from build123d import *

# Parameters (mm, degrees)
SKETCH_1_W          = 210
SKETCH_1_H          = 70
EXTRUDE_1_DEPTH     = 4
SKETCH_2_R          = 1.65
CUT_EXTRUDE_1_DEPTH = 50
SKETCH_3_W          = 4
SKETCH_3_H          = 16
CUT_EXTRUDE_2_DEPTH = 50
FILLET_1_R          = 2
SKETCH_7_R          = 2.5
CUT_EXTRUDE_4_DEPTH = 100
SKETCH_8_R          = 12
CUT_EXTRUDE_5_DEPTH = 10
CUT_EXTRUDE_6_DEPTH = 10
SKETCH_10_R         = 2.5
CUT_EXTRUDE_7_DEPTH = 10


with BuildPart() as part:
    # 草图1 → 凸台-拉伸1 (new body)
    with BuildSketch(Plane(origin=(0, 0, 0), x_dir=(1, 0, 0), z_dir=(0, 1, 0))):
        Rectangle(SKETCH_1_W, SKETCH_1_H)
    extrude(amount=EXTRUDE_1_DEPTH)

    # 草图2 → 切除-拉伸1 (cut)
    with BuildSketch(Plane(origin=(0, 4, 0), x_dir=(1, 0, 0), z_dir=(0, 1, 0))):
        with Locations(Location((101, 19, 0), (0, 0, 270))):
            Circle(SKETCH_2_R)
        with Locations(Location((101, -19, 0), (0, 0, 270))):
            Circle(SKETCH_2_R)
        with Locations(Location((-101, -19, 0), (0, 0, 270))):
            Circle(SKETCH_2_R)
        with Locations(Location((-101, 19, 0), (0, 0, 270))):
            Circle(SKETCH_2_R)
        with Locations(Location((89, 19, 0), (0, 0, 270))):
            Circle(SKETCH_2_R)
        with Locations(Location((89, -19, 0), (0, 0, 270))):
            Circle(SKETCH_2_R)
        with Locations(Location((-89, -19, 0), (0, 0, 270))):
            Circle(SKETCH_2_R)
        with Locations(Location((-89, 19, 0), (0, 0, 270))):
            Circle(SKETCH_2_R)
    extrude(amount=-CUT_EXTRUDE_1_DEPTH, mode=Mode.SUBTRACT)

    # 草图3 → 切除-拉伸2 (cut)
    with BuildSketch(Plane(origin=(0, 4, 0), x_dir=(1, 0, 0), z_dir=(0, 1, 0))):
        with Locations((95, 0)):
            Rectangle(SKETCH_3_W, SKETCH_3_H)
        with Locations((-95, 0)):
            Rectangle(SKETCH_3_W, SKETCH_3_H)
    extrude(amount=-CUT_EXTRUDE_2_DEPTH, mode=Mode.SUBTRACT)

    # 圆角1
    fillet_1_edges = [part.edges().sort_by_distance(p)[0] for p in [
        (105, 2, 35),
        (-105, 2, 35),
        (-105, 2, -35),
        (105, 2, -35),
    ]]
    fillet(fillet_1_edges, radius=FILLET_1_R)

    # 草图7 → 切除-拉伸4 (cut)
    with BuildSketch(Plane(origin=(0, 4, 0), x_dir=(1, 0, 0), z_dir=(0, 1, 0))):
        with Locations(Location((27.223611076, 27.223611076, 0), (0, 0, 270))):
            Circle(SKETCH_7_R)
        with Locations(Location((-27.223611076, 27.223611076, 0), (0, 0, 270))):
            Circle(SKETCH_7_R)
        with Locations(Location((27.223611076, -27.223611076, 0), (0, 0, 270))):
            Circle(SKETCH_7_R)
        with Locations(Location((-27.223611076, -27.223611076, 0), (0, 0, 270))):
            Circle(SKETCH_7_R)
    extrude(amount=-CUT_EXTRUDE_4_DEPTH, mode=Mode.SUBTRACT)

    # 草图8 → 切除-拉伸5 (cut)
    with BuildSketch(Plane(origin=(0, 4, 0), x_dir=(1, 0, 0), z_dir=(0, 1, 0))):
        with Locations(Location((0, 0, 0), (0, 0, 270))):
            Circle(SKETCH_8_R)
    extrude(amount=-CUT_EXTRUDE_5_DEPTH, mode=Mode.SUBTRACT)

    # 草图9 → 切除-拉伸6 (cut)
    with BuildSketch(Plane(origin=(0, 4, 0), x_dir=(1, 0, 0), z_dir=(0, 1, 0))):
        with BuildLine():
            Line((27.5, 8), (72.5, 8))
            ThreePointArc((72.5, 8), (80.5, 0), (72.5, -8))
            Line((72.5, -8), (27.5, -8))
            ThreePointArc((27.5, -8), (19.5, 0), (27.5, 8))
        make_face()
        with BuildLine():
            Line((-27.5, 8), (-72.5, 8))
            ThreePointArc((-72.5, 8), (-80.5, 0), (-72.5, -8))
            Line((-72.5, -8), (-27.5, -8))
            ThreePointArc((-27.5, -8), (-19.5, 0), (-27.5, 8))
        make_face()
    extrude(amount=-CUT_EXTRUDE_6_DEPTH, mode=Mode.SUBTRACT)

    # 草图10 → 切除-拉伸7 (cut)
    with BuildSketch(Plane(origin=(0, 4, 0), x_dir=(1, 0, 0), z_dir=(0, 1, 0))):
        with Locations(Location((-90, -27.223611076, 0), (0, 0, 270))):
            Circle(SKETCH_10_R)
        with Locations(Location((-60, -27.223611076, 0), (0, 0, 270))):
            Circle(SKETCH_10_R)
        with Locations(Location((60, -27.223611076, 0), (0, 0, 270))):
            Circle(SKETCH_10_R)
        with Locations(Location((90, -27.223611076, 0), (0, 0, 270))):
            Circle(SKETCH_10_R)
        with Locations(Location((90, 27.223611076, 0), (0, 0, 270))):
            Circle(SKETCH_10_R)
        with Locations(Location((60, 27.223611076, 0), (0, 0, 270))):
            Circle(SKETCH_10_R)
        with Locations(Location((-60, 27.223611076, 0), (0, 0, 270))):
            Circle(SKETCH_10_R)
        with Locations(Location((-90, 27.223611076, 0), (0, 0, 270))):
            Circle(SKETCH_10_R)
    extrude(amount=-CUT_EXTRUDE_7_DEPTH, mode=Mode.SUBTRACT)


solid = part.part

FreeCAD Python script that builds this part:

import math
import FreeCAD as App
import Part
import Sketcher


def edges_at(feature, points):
    """Names of the edges that pass closest to the given points."""
    edges = feature.Shape.Edges
    near = lambda p: min(range(len(edges)), key=lambda i: edges[i].distToShape(Part.Vertex(*p))[0])
    return sorted({f"Edge{near(p) + 1}" for p in points})


def add_polygon(sketch, points):
    """Adds a closed chain of lines whose ends are joined by coincident constraints."""
    first, n = sketch.GeometryCount, len(points)
    for a, b in zip(points, points[1:] + points[:1]):
        sketch.addGeometry(Part.LineSegment(App.Vector(*a, 0), App.Vector(*b, 0)), False)
    for i in range(n):
        sketch.addConstraint(Sketcher.Constraint("Coincident", first + i, 2, first + (i + 1) % n, 1))

doc = App.newDocument("Part")
body = doc.addObject("PartDesign::Body", "Body")

# Sketch on XZ plane
sketch1 = body.newObject("Sketcher::SketchObject", "Sketch")
sketch1.AttachmentSupport = (doc.getObject("XZ_Plane"), [""])
sketch1.MapMode = "FlatFace"
add_polygon(sketch1, [(-105, -35), (-105, 35), (105, 35), (105, -35)])  # lines 0-3
sketch1.addConstraint([
    Sketcher.Constraint("Vertical", 0),
    Sketcher.Constraint("Horizontal", 1),
    Sketcher.Constraint("Vertical", 2),
    Sketcher.Constraint("Horizontal", 3),
    Sketcher.Constraint("Symmetric", 0, 2, 2, 2, -1, 1),
    Sketcher.Constraint("DistanceX", 1, 1, 1, 2, 210.0),
    Sketcher.Constraint("DistanceY", 0, 1, 0, 2, 70.0),
])
pad1 = body.newObject("PartDesign::Pad", "Pad")
pad1.Profile = sketch1
pad1.Length = 4
pad1.Reversed = True

# Sketch on XZ plane
sketch2 = body.newObject("Sketcher::SketchObject", "Sketch001")
sketch2.AttachmentSupport = (doc.getObject("XZ_Plane"), [""])
sketch2.MapMode = "FlatFace"
sketch2.AttachmentOffset = App.Placement(App.Vector(0, 0, -4), App.Rotation())
sketch2.addGeometry([
    Part.Circle(App.Vector(101, -19, 0), App.Vector(0, 0, 1), 1.6),  # 0
    Part.Circle(App.Vector(101, 19, 0), App.Vector(0, 0, 1), 1.6),  # 1
    Part.Circle(App.Vector(-101, 19, 0), App.Vector(0, 0, 1), 1.6),  # 2
    Part.Circle(App.Vector(-101, -19, 0), App.Vector(0, 0, 1), 1.6),  # 3
    Part.Circle(App.Vector(89, -19, 0), App.Vector(0, 0, 1), 1.6),  # 4
    Part.Circle(App.Vector(89, 19, 0), App.Vector(0, 0, 1), 1.6),  # 5
    Part.Circle(App.Vector(-89, 19, 0), App.Vector(0, 0, 1), 1.6),  # 6
    Part.Circle(App.Vector(-89, -19, 0), App.Vector(0, 0, 1), 1.6),  # 7
], False)
sketch2.addConstraint([
    Sketcher.Constraint("Equal", 0, 1),
    Sketcher.Constraint("Equal", 1, 2),
    Sketcher.Constraint("Equal", 2, 3),
    Sketcher.Constraint("Equal", 3, 4),
    Sketcher.Constraint("Equal", 4, 5),
    Sketcher.Constraint("Equal", 5, 6),
    Sketcher.Constraint("Equal", 6, 7),
    Sketcher.Constraint("Symmetric", 0, 3, 2, 3, -1, 1),
    Sketcher.Constraint("Symmetric", 1, 3, 3, 3, -1, 1),
    Sketcher.Constraint("Symmetric", 4, 3, 6, 3, -1, 1),
    Sketcher.Constraint("Symmetric", 5, 3, 7, 3, -1, 1),
    Sketcher.Constraint("Symmetric", 1, 3, 2, 3, -2),
    Sketcher.Constraint("Symmetric", 5, 3, 6, 3, -2),
    Sketcher.Constraint("Horizontal", 3, 3, 4, 3),
    Sketcher.Constraint("Diameter", 0, 3.3),
    Sketcher.Constraint("DistanceX", -1, 1, 0, 3, 101.0),
    Sketcher.Constraint("DistanceY", 0, 3, -1, 1, 19.0),
    Sketcher.Constraint("DistanceX", -1, 1, 4, 3, 89.0),
])
pocket1 = body.newObject("PartDesign::Pocket", "Pocket")
pocket1.Profile = sketch2
pocket1.Length = 50
pocket1.Reversed = True

# Sketch on XZ plane
sketch3 = body.newObject("Sketcher::SketchObject", "Sketch002")
sketch3.AttachmentSupport = (doc.getObject("XZ_Plane"), [""])
sketch3.MapMode = "FlatFace"
sketch3.AttachmentOffset = App.Placement(App.Vector(0, 0, -4), App.Rotation())
add_polygon(sketch3, [(93, -8), (93, 8), (97, 8), (97, -8)])  # lines 0-3
add_polygon(sketch3, [(-97, -8), (-97, 8), (-93, 8), (-93, -8)])  # lines 4-7
sketch3.addConstraint([
    Sketcher.Constraint("Vertical", 0),
    Sketcher.Constraint("Horizontal", 1),
    Sketcher.Constraint("Vertical", 2),
    Sketcher.Constraint("Horizontal", 3),
    Sketcher.Constraint("Vertical", 4),
    Sketcher.Constraint("Horizontal", 5),
    Sketcher.Constraint("Vertical", 6),
    Sketcher.Constraint("Horizontal", 7),
    Sketcher.Constraint("Symmetric", 2, 2, 4, 2, -1, 1),
    Sketcher.Constraint("Symmetric", 0, 2, 6, 2, -1, 1),
    Sketcher.Constraint("Horizontal", 1, 2, 4, 2),
    Sketcher.Constraint("DistanceX", 1, 1, 1, 2, 4.0),
    Sketcher.Constraint("DistanceY", 0, 1, 0, 2, 16.0),
    Sketcher.Constraint("DistanceX", -1, 1, 0, 2, 93.0),
])
pocket2 = body.newObject("PartDesign::Pocket", "Pocket001")
pocket2.Profile = sketch3
pocket2.Length = 50
pocket2.Reversed = True
doc.recompute()

fillet = body.newObject("PartDesign::Fillet", "Fillet")
fillet.Base = (pocket2, edges_at(pocket2, [
    (105, 2, 35),
    (-105, 2, 35),
    (-105, 2, -35),
    (105, 2, -35),
]))
fillet.Radius = 2

# Sketch on XZ plane
sketch4 = body.newObject("Sketcher::SketchObject", "Sketch003")
sketch4.AttachmentSupport = (doc.getObject("XZ_Plane"), [""])
sketch4.MapMode = "FlatFace"
sketch4.AttachmentOffset = App.Placement(App.Vector(0, 0, -4), App.Rotation())
sketch4.addGeometry([
    Part.Circle(App.Vector(27.2, -27.2, 0), App.Vector(0, 0, 1), 2.5),
    Part.Circle(App.Vector(-27.2, -27.2, 0), App.Vector(0, 0, 1), 2.5),
    Part.Circle(App.Vector(27.2, 27.2, 0), App.Vector(0, 0, 1), 2.5),
    Part.Circle(App.Vector(-27.2, 27.2, 0), App.Vector(0, 0, 1), 2.5),
], False)
sketch4.addConstraint([
    Sketcher.Constraint("Equal", 0, 1),
    Sketcher.Constraint("Equal", 1, 2),
    Sketcher.Constraint("Equal", 2, 3),
    Sketcher.Constraint("Symmetric", 1, 3, 2, 3, -1, 1),
    Sketcher.Constraint("Symmetric", 0, 3, 3, 3, -1, 1),
    Sketcher.Constraint("Symmetric", 0, 3, 1, 3, -2),
    Sketcher.Constraint("Diameter", 0, 5.0),
    Sketcher.Constraint("DistanceX", -1, 1, 0, 3, 27.223611),
    Sketcher.Constraint("DistanceY", 0, 3, -1, 1, 27.223611),
])
pocket3 = body.newObject("PartDesign::Pocket", "Pocket002")
pocket3.Profile = sketch4
pocket3.Length = 100
pocket3.Reversed = True

# Sketch on XZ plane
sketch5 = body.newObject("Sketcher::SketchObject", "Sketch004")
sketch5.AttachmentSupport = (doc.getObject("XZ_Plane"), [""])
sketch5.MapMode = "FlatFace"
sketch5.AttachmentOffset = App.Placement(App.Vector(0, 0, -4), App.Rotation())
sketch5.addGeometry(Part.Circle(App.Vector(0, 0, 0), App.Vector(0, 0, 1), 12), False)
sketch5.addConstraint([
    Sketcher.Constraint("Coincident", 0, 3, -1, 1),
    Sketcher.Constraint("Diameter", 0, 24.0),
])
pocket4 = body.newObject("PartDesign::Pocket", "Pocket003")
pocket4.Profile = sketch5
pocket4.Length = 10
pocket4.Reversed = True

# Sketch on XZ plane
sketch6 = body.newObject("Sketcher::SketchObject", "Sketch005")
sketch6.AttachmentSupport = (doc.getObject("XZ_Plane"), [""])
sketch6.MapMode = "FlatFace"
sketch6.AttachmentOffset = App.Placement(App.Vector(0, 0, -4), App.Rotation())
sketch6.addGeometry([
    Part.LineSegment(App.Vector(72, -8, 0), App.Vector(28, -8, 0)),  # 0
    Part.ArcOfCircle(Part.Circle(App.Vector(28, 0, 0), App.Vector(0, 0, 1), 8), math.radians(90), math.radians(270)),  # 1
    Part.LineSegment(App.Vector(28, 8, 0), App.Vector(72, 8, 0)),  # 2
    Part.ArcOfCircle(Part.Circle(App.Vector(72, 0, 0), App.Vector(0, 0, 1), 8), math.radians(-90), math.radians(90)),  # 3
    Part.LineSegment(App.Vector(-28, -8, 0), App.Vector(-72, -8, 0)),  # 4
    Part.ArcOfCircle(Part.Circle(App.Vector(-72, 0, 0), App.Vector(0, 0, 1), 8), math.radians(90), math.radians(270)),  # 5
    Part.LineSegment(App.Vector(-72, 8, 0), App.Vector(-28, 8, 0)),  # 6
    Part.ArcOfCircle(Part.Circle(App.Vector(-28, 0, 0), App.Vector(0, 0, 1), 8), math.radians(-90), math.radians(90)),  # 7
], False)
sketch6.addConstraint([
    Sketcher.Constraint("Tangent", 0, 2, 1, 2),
    Sketcher.Constraint("Tangent", 1, 1, 2, 1),
    Sketcher.Constraint("Tangent", 2, 2, 3, 2),
    Sketcher.Constraint("Tangent", 3, 1, 0, 1),
    Sketcher.Constraint("Tangent", 4, 2, 5, 2),
    Sketcher.Constraint("Tangent", 5, 1, 6, 1),
    Sketcher.Constraint("Tangent", 6, 2, 7, 2),
    Sketcher.Constraint("Tangent", 7, 1, 4, 1),
    Sketcher.Constraint("Horizontal", 0),
    Sketcher.Constraint("Horizontal", 2),
    Sketcher.Constraint("Horizontal", 4),
    Sketcher.Constraint("Horizontal", 6),
    Sketcher.Constraint("Equal", 3, 5),
    Sketcher.Constraint("Symmetric", 3, 3, 5, 3, -1, 1),
    Sketcher.Constraint("Symmetric", 1, 3, 7, 3, -2),
    Sketcher.Constraint("Radius", 1, 8.0),
    Sketcher.Constraint("DistanceX", 0, 2, 0, 1, 45.0),
    Sketcher.Constraint("DistanceX", 5, 3, 1, 3, 100.0),
])
pocket5 = body.newObject("PartDesign::Pocket", "Pocket004")
pocket5.Profile = sketch6
pocket5.Length = 10
pocket5.Reversed = True

# Sketch on XZ plane
sketch7 = body.newObject("Sketcher::SketchObject", "Sketch006")
sketch7.AttachmentSupport = (doc.getObject("XZ_Plane"), [""])
sketch7.MapMode = "FlatFace"
sketch7.AttachmentOffset = App.Placement(App.Vector(0, 0, -4), App.Rotation())
sketch7.addGeometry([
    Part.Circle(App.Vector(-90, 27.2, 0), App.Vector(0, 0, 1), 2.5),  # 0
    Part.Circle(App.Vector(-60, 27.2, 0), App.Vector(0, 0, 1), 2.5),  # 1
    Part.Circle(App.Vector(60, 27.2, 0), App.Vector(0, 0, 1), 2.5),  # 2
    Part.Circle(App.Vector(90, 27.2, 0), App.Vector(0, 0, 1), 2.5),  # 3
    Part.Circle(App.Vector(90, -27.2, 0), App.Vector(0, 0, 1), 2.5),  # 4
    Part.Circle(App.Vector(60, -27.2, 0), App.Vector(0, 0, 1), 2.5),  # 5
    Part.Circle(App.Vector(-60, -27.2, 0), App.Vector(0, 0, 1), 2.5),  # 6
    Part.Circle(App.Vector(-90, -27.2, 0), App.Vector(0, 0, 1), 2.5),  # 7
], False)
sketch7.addConstraint([
    Sketcher.Constraint("Equal", 0, 1),
    Sketcher.Constraint("Equal", 1, 2),
    Sketcher.Constraint("Equal", 2, 3),
    Sketcher.Constraint("Equal", 3, 4),
    Sketcher.Constraint("Equal", 4, 5),
    Sketcher.Constraint("Equal", 5, 6),
    Sketcher.Constraint("Equal", 6, 7),
    Sketcher.Constraint("Symmetric", 0, 3, 4, 3, -1, 1),
    Sketcher.Constraint("Symmetric", 1, 3, 5, 3, -1, 1),
    Sketcher.Constraint("Symmetric", 2, 3, 6, 3, -1, 1),
    Sketcher.Constraint("Symmetric", 3, 3, 7, 3, -1, 1),
    Sketcher.Constraint("Symmetric", 1, 3, 2, 3, -2),
    Sketcher.Constraint("Symmetric", 0, 3, 3, 3, -2),
    Sketcher.Constraint("Horizontal", 0, 3, 1, 3),
    Sketcher.Constraint("Diameter", 0, 5.0),
    Sketcher.Constraint("DistanceX", 0, 3, -1, 1, 90.0),
    Sketcher.Constraint("DistanceX", 1, 3, -1, 1, 60.0),
    Sketcher.Constraint("DistanceY", -1, 1, 0, 3, 27.223611),
])
pocket6 = body.newObject("PartDesign::Pocket", "Pocket005")
pocket6.Profile = sketch7
pocket6.Length = 10
pocket6.Reversed = True

doc.recompute()
